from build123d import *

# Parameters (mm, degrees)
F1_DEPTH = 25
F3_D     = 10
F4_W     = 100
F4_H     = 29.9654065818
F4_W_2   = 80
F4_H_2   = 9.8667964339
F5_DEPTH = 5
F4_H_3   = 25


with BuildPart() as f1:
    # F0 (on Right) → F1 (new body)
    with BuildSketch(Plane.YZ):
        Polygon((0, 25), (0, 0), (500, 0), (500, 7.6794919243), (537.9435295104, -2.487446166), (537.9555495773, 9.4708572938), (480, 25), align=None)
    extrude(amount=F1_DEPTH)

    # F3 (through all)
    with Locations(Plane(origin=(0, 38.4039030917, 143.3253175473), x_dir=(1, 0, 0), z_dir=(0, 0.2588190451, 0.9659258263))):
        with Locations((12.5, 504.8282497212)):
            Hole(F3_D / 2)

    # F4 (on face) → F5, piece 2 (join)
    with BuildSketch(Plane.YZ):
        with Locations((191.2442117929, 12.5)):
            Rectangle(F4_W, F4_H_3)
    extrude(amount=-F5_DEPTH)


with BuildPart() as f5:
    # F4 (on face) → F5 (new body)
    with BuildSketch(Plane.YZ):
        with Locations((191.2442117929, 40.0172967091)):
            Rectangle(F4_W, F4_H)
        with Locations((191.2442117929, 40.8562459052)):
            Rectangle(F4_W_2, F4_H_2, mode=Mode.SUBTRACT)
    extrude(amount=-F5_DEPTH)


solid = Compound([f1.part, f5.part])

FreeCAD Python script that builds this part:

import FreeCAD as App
import Part
import Sketcher
Q = App.Units.Quantity

doc = App.newDocument("Part")
body = doc.addObject("PartDesign::Body", "Body")

# Sketch on YZ plane
sketch1 = doc.addObject("Sketcher::SketchObject", "Sketch")
body.addObject(sketch1)
sketch1.AttachmentSupport = (doc.YZ_Plane, [""])
sketch1.MapMode = "FlatFace"
sketch1.addGeometry(Part.LineSegment(App.Vector(0, 25, 0), App.Vector(0, 0, 0)), False)
sketch1.addGeometry(Part.LineSegment(App.Vector(0, 0, 0), App.Vector(500, 0, 0)), False)
sketch1.addGeometry(Part.LineSegment(App.Vector(500, 0, 0), App.Vector(500, 8, 0)), False)
sketch1.addGeometry(Part.LineSegment(App.Vector(500, 8, 0), App.Vector(538, -2, 0)), False)
sketch1.addGeometry(Part.LineSegment(App.Vector(538, -2, 0), App.Vector(538, 9, 0)), False)
sketch1.addGeometry(Part.LineSegment(App.Vector(538, 9, 0), App.Vector(480, 25, 0)), False)
sketch1.addGeometry(Part.LineSegment(App.Vector(480, 25, 0), App.Vector(0, 25, 0)), False)
sketch1.addConstraint(Sketcher.Constraint("Coincident", 0, 2, 1, 1))
sketch1.addConstraint(Sketcher.Constraint("Coincident", 1, 2, 2, 1))
sketch1.addConstraint(Sketcher.Constraint("Coincident", 2, 2, 3, 1))
sketch1.addConstraint(Sketcher.Constraint("Coincident", 3, 2, 4, 1))
sketch1.addConstraint(Sketcher.Constraint("Coincident", 4, 2, 5, 1))
sketch1.addConstraint(Sketcher.Constraint("Coincident", 5, 2, 6, 1))
sketch1.addConstraint(Sketcher.Constraint("Coincident", 6, 2, 0, 1))
sketch1.addConstraint(Sketcher.Constraint("Vertical", 0))
sketch1.addConstraint(Sketcher.Constraint("Horizontal", 1))
sketch1.addConstraint(Sketcher.Constraint("Vertical", 2))
sketch1.addConstraint(Sketcher.Constraint("Horizontal", 6))
sketch1.addConstraint(Sketcher.Constraint("Coincident", 0, 2, -1, 1))
sketch1.addConstraint(Sketcher.Constraint("Parallel", 3, 5))
sketch1.addConstraint(Sketcher.Constraint("DistanceX", 1, 1, 1, 2, 500.0))
sketch1.addConstraint(Sketcher.Constraint("DistanceX", 6, 2, 6, 1, 480.0))
sketch1.addConstraint(Sketcher.Constraint("DistanceY", 0, 2, 0, 1, 25.0))
sketch1.addConstraint(Sketcher.Constraint("Angle", 3, Q("-15 deg")))
sketch1.addConstraint(Sketcher.Constraint("Distance", 5, 60.0))
sketch1.addConstraint(Sketcher.Constraint("DistanceY", 2, 1, 2, 2, 7.679492))
sketch1.addConstraint(Sketcher.Constraint("Distance", 4, 11.95831))
pad1 = doc.addObject("PartDesign::Pad", "Pad")
body.addObject(pad1)
pad1.Profile = sketch1
pad1.Length = 25

# Sketch on an angled plane
sketch2 = doc.addObject("Sketcher::SketchObject", "Sketch001")
body.addObject(sketch2)
sketch2.Placement = App.Placement(App.Vector(0, 38.403903, 143.325318), App.Rotation(App.Vector(1, 0, 0), App.Vector(0, 0.965925826, -0.258819045), App.Vector(0, 0.258819045, 0.965925826), "ZXY"))
sketch2.addGeometry(Part.Circle(App.Vector(12, 505, 0), App.Vector(0, 0, 1), 5), False)
sketch2.addConstraint(Sketcher.Constraint("Diameter", 0, 10.0))
sketch2.addConstraint(Sketcher.Constraint("DistanceX", -1, 1, 0, 3, 12.5))
sketch2.addConstraint(Sketcher.Constraint("DistanceY", -1, 1, 0, 3, 504.828249))
doc.recompute()
hole = doc.addObject("PartDesign::Hole", "Hole")
body.addObject(hole)
hole.Profile = sketch2
hole.ThreadType = "None"
hole.Diameter = 10
hole.DepthType = "ThroughAll"

# Sketch on YZ plane
sketch3 = doc.addObject("Sketcher::SketchObject", "Sketch002")
body.addObject(sketch3)
sketch3.AttachmentSupport = (doc.YZ_Plane, [""])
sketch3.MapMode = "FlatFace"
sketch3.addGeometry(Part.LineSegment(App.Vector(141, 25, 0), App.Vector(141, 0, 0)), False)
sketch3.addGeometry(Part.LineSegment(App.Vector(141, 0, 0), App.Vector(241, 0, 0)), False)
sketch3.addGeometry(Part.LineSegment(App.Vector(241, 0, 0), App.Vector(241, 25, 0)), False)
sketch3.addGeometry(Part.LineSegment(App.Vector(241, 25, 0), App.Vector(141, 25, 0)), False)
sketch3.addConstraint(Sketcher.Constraint("Coincident", 0, 2, 1, 1))
sketch3.addConstraint(Sketcher.Constraint("Coincident", 1, 2, 2, 1))
sketch3.addConstraint(Sketcher.Constraint("Coincident", 2, 2, 3, 1))
sketch3.addConstraint(Sketcher.Constraint("Coincident", 3, 2, 0, 1))
sketch3.addConstraint(Sketcher.Constraint("Vertical", 0))
sketch3.addConstraint(Sketcher.Constraint("Horizontal", 1))
sketch3.addConstraint(Sketcher.Constraint("Vertical", 2))
sketch3.addConstraint(Sketcher.Constraint("Horizontal", 3))
sketch3.addConstraint(Sketcher.Constraint("PointOnObject", 0, 2, -1))
sketch3.addConstraint(Sketcher.Constraint("DistanceX", 1, 1, 1, 2, 100.0))
sketch3.addConstraint(Sketcher.Constraint("DistanceY", 0, 2, 0, 1, 25.0))
sketch3.addConstraint(Sketcher.Constraint("DistanceX", -1, 1, 0, 2, 141.244212))
pad2 = doc.addObject("PartDesign::Pad", "Pad001")
body.addObject(pad2)
pad2.Profile = sketch3
pad2.Length = 5
pad2.Reversed = True
body2 = doc.addObject("PartDesign::Body", "Body001")

# Sketch on YZ plane
sketch4 = doc.addObject("Sketcher::SketchObject", "Sketch003")
body2.addObject(sketch4)
sketch4.AttachmentSupport = (doc.getObject("YZ_Plane001"), [""])
sketch4.MapMode = "FlatFace"
sketch4.addGeometry(Part.LineSegment(App.Vector(141, 55, 0), App.Vector(141, 25, 0)), False)
sketch4.addGeometry(Part.LineSegment(App.Vector(141, 25, 0), App.Vector(241, 25, 0)), False)
sketch4.addGeometry(Part.LineSegment(App.Vector(241, 25, 0), App.Vector(241, 55, 0)), False)
sketch4.addGeometry(Part.LineSegment(App.Vector(241, 55, 0), App.Vector(141, 55, 0)), False)
sketch4.addGeometry(Part.LineSegment(App.Vector(231, 36, 0), App.Vector(151, 36, 0)), False)
sketch4.addGeometry(Part.LineSegment(App.Vector(151, 36, 0), App.Vector(151, 46, 0)), False)
sketch4.addGeometry(Part.LineSegment(App.Vector(151, 46, 0), App.Vector(231, 46, 0)), False)
sketch4.addGeometry(Part.LineSegment(App.Vector(231, 46, 0), App.Vector(231, 36, 0)), False)
sketch4.addConstraint(Sketcher.Constraint("Coincident", 0, 2, 1, 1))
sketch4.addConstraint(Sketcher.Constraint("Coincident", 1, 2, 2, 1))
sketch4.addConstraint(Sketcher.Constraint("Coincident", 2, 2, 3, 1))
sketch4.addConstraint(Sketcher.Constraint("Coincident", 3, 2, 0, 1))
sketch4.addConstraint(Sketcher.Constraint("Coincident", 4, 2, 5, 1))
sketch4.addConstraint(Sketcher.Constraint("Coincident", 5, 2, 6, 1))
sketch4.addConstraint(Sketcher.Constraint("Coincident", 6, 2, 7, 1))
sketch4.addConstraint(Sketcher.Constraint("Coincident", 7, 2, 4, 1))
sketch4.addConstraint(Sketcher.Constraint("Vertical", 0))
sketch4.addConstraint(Sketcher.Constraint("Horizontal", 1))
sketch4.addConstraint(Sketcher.Constraint("Vertical", 2))
sketch4.addConstraint(Sketcher.Constraint("Horizontal", 3))
sketch4.addConstraint(Sketcher.Constraint("Horizontal", 4))
sketch4.addConstraint(Sketcher.Constraint("Vertical", 5))
sketch4.addConstraint(Sketcher.Constraint("Horizontal", 6))
sketch4.addConstraint(Sketcher.Constraint("Vertical", 7))
sketch4.addConstraint(Sketcher.Constraint("DistanceX", 1, 1, 1, 2, 100.0))
sketch4.addConstraint(Sketcher.Constraint("DistanceX", 4, 2, 4, 1, 80.0))
sketch4.addConstraint(Sketcher.Constraint("DistanceY", -1, 1, 2, 2, 55.0))
sketch4.addConstraint(Sketcher.Constraint("DistanceX", 0, 2, 4, 2, 10.0))
sketch4.addConstraint(Sketcher.Constraint("DistanceY", 0, 2, 0, 1, 29.965407))
sketch4.addConstraint(Sketcher.Constraint("DistanceY", 5, 1, 5, 2, 9.866796))
sketch4.addConstraint(Sketcher.Constraint("DistanceX", -1, 1, 0, 2, 141.244212))
sketch4.addConstraint(Sketcher.Constraint("DistanceY", 0, 2, 5, 2, 20.755051))
pad3 = doc.addObject("PartDesign::Pad", "Pad002")
body2.addObject(pad3)
pad3.Profile = sketch4
pad3.Length = 5
pad3.Reversed = True

doc.recompute()
